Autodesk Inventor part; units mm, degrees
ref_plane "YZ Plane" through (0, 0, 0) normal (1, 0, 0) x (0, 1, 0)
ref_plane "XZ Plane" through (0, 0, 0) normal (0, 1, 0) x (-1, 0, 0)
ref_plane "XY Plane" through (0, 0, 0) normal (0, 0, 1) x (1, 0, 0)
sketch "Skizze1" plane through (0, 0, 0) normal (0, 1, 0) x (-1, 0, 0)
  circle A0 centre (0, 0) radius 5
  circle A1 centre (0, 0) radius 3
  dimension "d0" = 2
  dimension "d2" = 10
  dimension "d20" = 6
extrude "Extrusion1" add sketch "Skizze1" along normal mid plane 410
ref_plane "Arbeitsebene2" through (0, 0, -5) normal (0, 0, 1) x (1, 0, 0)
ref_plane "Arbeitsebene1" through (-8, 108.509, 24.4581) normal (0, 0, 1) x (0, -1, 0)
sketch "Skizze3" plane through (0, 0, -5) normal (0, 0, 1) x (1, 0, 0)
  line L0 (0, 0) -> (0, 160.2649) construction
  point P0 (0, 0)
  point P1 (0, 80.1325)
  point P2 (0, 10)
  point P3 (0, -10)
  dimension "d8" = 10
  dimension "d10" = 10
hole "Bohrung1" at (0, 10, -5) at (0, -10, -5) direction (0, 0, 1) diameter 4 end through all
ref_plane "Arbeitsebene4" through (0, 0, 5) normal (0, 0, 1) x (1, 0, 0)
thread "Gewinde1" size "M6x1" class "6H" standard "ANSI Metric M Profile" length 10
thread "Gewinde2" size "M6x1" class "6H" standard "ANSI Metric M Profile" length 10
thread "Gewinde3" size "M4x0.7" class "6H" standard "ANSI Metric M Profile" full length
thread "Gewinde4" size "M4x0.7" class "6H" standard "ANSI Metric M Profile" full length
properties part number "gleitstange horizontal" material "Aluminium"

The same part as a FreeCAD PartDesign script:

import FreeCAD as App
import Part
import Sketcher

V = App.Vector
Q = App.Units.Quantity

doc = App.newDocument("Part")
body = doc.addObject("PartDesign::Body", "Body")

# Sketch on XZ plane
sketch1 = doc.addObject("Sketcher::SketchObject", "Sketch")
body.addObject(sketch1)
sketch1.AttachmentSupport = (doc.XZ_Plane, [""])
sketch1.MapMode = "FlatFace"
sketch1.addGeometry(Part.Circle(V(0, 0, 0), V(0, 0, 1), 5), False)
sketch1.addGeometry(Part.Circle(V(0, 0, 0), V(0, 0, 1), 3), False)
sketch1.addConstraint(Sketcher.Constraint("Coincident", 0, 3, -1, 1))
sketch1.addConstraint(Sketcher.Constraint("Coincident", 1, 3, -1, 1))
sketch1.addConstraint(Sketcher.Constraint("Diameter", 0, Q("10 mm")))
sketch1.addConstraint(Sketcher.Constraint("Diameter", 1, Q("6 mm")))
pad1 = doc.addObject("PartDesign::Pad", "Pad")
body.addObject(pad1)
pad1.Profile = sketch1
pad1.Length = 410
pad1.Midplane = True

# Sketch on XY plane
sketch2 = doc.addObject("Sketcher::SketchObject", "Sketch001")
body.addObject(sketch2)
sketch2.AttachmentSupport = (doc.XY_Plane, [""])
sketch2.MapMode = "FlatFace"
sketch2.AttachmentOffset = App.Placement(V(0, 0, -5), App.Rotation())
sketch2.addGeometry(Part.Circle(V(0, 10, 0), V(0, 0, 1), 2), False)
sketch2.addGeometry(Part.Circle(V(0, -10, 0), V(0, 0, 1), 2), False)
sketch2.addConstraint(Sketcher.Constraint("Equal", 0, 1))
sketch2.addConstraint(Sketcher.Constraint("Symmetric", 0, 3, 1, 3, -1, 1))
sketch2.addConstraint(Sketcher.Constraint("PointOnObject", 0, 3, -2))
sketch2.addConstraint(Sketcher.Constraint("Diameter", 0, Q("4 mm")))
sketch2.addConstraint(Sketcher.Constraint("DistanceY", -1, 1, 0, 3, Q("10 mm")))
doc.recompute()
hole = doc.addObject("PartDesign::Hole", "Hole")
body.addObject(hole)
hole.Profile = sketch2
hole.ThreadType = "None"
hole.Diameter = 4
hole.DepthType = "ThroughAll"
hole.Reversed = True

doc.recompute()
